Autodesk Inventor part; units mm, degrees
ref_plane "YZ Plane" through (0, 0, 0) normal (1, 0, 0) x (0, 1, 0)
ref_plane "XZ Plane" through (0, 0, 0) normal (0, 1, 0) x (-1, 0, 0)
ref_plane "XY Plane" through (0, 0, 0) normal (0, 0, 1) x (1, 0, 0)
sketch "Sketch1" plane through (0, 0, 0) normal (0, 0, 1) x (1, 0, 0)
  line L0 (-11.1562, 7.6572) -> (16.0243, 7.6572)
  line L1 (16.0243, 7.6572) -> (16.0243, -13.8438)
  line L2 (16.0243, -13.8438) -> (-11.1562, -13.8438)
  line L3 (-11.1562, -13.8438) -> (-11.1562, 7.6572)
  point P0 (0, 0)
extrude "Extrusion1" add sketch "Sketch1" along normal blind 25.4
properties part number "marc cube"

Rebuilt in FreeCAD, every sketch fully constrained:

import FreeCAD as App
import Part
import Sketcher
Q = App.Units.Quantity


def add_polygon(sketch, points):
    """Adds a closed chain of lines whose ends are joined by coincident constraints."""
    first, n = sketch.GeometryCount, len(points)
    for a, b in zip(points, points[1:] + points[:1]):
        sketch.addGeometry(Part.LineSegment(App.Vector(*a, 0), App.Vector(*b, 0)), False)
    for i in range(n):
        sketch.addConstraint(Sketcher.Constraint("Coincident", first + i, 2, first + (i + 1) % n, 1))

doc = App.newDocument("Part")
body = doc.addObject("PartDesign::Body", "Body")

# Sketch on XY plane
sketch1 = body.newObject("Sketcher::SketchObject", "Sketch")
sketch1.AttachmentSupport = (doc.getObject("XY_Plane"), [""])
sketch1.MapMode = "FlatFace"
add_polygon(sketch1, [(16, 8), (-11, 8), (-11, -14), (16, -14)])  # lines 0-3
sketch1.addConstraint([
    Sketcher.Constraint("Horizontal", 0),
    Sketcher.Constraint("Vertical", 1),
    Sketcher.Constraint("Horizontal", 2),
    Sketcher.Constraint("Vertical", 3),
    Sketcher.Constraint("DistanceX", 0, 2, 0, 1, Q("1.0701 in")),
    Sketcher.Constraint("DistanceY", 1, 2, 1, 1, Q("0.8465 in")),
    Sketcher.Constraint("DistanceX", 0, 2, -1, 1, 11.1562),
    Sketcher.Constraint("DistanceY", -1, 1, 0, 2, 7.6572),
])
pad1 = body.newObject("PartDesign::Pad", "Pad")
pad1.Profile = sketch1
pad1.Length = Q("1 in")

doc.recompute()
